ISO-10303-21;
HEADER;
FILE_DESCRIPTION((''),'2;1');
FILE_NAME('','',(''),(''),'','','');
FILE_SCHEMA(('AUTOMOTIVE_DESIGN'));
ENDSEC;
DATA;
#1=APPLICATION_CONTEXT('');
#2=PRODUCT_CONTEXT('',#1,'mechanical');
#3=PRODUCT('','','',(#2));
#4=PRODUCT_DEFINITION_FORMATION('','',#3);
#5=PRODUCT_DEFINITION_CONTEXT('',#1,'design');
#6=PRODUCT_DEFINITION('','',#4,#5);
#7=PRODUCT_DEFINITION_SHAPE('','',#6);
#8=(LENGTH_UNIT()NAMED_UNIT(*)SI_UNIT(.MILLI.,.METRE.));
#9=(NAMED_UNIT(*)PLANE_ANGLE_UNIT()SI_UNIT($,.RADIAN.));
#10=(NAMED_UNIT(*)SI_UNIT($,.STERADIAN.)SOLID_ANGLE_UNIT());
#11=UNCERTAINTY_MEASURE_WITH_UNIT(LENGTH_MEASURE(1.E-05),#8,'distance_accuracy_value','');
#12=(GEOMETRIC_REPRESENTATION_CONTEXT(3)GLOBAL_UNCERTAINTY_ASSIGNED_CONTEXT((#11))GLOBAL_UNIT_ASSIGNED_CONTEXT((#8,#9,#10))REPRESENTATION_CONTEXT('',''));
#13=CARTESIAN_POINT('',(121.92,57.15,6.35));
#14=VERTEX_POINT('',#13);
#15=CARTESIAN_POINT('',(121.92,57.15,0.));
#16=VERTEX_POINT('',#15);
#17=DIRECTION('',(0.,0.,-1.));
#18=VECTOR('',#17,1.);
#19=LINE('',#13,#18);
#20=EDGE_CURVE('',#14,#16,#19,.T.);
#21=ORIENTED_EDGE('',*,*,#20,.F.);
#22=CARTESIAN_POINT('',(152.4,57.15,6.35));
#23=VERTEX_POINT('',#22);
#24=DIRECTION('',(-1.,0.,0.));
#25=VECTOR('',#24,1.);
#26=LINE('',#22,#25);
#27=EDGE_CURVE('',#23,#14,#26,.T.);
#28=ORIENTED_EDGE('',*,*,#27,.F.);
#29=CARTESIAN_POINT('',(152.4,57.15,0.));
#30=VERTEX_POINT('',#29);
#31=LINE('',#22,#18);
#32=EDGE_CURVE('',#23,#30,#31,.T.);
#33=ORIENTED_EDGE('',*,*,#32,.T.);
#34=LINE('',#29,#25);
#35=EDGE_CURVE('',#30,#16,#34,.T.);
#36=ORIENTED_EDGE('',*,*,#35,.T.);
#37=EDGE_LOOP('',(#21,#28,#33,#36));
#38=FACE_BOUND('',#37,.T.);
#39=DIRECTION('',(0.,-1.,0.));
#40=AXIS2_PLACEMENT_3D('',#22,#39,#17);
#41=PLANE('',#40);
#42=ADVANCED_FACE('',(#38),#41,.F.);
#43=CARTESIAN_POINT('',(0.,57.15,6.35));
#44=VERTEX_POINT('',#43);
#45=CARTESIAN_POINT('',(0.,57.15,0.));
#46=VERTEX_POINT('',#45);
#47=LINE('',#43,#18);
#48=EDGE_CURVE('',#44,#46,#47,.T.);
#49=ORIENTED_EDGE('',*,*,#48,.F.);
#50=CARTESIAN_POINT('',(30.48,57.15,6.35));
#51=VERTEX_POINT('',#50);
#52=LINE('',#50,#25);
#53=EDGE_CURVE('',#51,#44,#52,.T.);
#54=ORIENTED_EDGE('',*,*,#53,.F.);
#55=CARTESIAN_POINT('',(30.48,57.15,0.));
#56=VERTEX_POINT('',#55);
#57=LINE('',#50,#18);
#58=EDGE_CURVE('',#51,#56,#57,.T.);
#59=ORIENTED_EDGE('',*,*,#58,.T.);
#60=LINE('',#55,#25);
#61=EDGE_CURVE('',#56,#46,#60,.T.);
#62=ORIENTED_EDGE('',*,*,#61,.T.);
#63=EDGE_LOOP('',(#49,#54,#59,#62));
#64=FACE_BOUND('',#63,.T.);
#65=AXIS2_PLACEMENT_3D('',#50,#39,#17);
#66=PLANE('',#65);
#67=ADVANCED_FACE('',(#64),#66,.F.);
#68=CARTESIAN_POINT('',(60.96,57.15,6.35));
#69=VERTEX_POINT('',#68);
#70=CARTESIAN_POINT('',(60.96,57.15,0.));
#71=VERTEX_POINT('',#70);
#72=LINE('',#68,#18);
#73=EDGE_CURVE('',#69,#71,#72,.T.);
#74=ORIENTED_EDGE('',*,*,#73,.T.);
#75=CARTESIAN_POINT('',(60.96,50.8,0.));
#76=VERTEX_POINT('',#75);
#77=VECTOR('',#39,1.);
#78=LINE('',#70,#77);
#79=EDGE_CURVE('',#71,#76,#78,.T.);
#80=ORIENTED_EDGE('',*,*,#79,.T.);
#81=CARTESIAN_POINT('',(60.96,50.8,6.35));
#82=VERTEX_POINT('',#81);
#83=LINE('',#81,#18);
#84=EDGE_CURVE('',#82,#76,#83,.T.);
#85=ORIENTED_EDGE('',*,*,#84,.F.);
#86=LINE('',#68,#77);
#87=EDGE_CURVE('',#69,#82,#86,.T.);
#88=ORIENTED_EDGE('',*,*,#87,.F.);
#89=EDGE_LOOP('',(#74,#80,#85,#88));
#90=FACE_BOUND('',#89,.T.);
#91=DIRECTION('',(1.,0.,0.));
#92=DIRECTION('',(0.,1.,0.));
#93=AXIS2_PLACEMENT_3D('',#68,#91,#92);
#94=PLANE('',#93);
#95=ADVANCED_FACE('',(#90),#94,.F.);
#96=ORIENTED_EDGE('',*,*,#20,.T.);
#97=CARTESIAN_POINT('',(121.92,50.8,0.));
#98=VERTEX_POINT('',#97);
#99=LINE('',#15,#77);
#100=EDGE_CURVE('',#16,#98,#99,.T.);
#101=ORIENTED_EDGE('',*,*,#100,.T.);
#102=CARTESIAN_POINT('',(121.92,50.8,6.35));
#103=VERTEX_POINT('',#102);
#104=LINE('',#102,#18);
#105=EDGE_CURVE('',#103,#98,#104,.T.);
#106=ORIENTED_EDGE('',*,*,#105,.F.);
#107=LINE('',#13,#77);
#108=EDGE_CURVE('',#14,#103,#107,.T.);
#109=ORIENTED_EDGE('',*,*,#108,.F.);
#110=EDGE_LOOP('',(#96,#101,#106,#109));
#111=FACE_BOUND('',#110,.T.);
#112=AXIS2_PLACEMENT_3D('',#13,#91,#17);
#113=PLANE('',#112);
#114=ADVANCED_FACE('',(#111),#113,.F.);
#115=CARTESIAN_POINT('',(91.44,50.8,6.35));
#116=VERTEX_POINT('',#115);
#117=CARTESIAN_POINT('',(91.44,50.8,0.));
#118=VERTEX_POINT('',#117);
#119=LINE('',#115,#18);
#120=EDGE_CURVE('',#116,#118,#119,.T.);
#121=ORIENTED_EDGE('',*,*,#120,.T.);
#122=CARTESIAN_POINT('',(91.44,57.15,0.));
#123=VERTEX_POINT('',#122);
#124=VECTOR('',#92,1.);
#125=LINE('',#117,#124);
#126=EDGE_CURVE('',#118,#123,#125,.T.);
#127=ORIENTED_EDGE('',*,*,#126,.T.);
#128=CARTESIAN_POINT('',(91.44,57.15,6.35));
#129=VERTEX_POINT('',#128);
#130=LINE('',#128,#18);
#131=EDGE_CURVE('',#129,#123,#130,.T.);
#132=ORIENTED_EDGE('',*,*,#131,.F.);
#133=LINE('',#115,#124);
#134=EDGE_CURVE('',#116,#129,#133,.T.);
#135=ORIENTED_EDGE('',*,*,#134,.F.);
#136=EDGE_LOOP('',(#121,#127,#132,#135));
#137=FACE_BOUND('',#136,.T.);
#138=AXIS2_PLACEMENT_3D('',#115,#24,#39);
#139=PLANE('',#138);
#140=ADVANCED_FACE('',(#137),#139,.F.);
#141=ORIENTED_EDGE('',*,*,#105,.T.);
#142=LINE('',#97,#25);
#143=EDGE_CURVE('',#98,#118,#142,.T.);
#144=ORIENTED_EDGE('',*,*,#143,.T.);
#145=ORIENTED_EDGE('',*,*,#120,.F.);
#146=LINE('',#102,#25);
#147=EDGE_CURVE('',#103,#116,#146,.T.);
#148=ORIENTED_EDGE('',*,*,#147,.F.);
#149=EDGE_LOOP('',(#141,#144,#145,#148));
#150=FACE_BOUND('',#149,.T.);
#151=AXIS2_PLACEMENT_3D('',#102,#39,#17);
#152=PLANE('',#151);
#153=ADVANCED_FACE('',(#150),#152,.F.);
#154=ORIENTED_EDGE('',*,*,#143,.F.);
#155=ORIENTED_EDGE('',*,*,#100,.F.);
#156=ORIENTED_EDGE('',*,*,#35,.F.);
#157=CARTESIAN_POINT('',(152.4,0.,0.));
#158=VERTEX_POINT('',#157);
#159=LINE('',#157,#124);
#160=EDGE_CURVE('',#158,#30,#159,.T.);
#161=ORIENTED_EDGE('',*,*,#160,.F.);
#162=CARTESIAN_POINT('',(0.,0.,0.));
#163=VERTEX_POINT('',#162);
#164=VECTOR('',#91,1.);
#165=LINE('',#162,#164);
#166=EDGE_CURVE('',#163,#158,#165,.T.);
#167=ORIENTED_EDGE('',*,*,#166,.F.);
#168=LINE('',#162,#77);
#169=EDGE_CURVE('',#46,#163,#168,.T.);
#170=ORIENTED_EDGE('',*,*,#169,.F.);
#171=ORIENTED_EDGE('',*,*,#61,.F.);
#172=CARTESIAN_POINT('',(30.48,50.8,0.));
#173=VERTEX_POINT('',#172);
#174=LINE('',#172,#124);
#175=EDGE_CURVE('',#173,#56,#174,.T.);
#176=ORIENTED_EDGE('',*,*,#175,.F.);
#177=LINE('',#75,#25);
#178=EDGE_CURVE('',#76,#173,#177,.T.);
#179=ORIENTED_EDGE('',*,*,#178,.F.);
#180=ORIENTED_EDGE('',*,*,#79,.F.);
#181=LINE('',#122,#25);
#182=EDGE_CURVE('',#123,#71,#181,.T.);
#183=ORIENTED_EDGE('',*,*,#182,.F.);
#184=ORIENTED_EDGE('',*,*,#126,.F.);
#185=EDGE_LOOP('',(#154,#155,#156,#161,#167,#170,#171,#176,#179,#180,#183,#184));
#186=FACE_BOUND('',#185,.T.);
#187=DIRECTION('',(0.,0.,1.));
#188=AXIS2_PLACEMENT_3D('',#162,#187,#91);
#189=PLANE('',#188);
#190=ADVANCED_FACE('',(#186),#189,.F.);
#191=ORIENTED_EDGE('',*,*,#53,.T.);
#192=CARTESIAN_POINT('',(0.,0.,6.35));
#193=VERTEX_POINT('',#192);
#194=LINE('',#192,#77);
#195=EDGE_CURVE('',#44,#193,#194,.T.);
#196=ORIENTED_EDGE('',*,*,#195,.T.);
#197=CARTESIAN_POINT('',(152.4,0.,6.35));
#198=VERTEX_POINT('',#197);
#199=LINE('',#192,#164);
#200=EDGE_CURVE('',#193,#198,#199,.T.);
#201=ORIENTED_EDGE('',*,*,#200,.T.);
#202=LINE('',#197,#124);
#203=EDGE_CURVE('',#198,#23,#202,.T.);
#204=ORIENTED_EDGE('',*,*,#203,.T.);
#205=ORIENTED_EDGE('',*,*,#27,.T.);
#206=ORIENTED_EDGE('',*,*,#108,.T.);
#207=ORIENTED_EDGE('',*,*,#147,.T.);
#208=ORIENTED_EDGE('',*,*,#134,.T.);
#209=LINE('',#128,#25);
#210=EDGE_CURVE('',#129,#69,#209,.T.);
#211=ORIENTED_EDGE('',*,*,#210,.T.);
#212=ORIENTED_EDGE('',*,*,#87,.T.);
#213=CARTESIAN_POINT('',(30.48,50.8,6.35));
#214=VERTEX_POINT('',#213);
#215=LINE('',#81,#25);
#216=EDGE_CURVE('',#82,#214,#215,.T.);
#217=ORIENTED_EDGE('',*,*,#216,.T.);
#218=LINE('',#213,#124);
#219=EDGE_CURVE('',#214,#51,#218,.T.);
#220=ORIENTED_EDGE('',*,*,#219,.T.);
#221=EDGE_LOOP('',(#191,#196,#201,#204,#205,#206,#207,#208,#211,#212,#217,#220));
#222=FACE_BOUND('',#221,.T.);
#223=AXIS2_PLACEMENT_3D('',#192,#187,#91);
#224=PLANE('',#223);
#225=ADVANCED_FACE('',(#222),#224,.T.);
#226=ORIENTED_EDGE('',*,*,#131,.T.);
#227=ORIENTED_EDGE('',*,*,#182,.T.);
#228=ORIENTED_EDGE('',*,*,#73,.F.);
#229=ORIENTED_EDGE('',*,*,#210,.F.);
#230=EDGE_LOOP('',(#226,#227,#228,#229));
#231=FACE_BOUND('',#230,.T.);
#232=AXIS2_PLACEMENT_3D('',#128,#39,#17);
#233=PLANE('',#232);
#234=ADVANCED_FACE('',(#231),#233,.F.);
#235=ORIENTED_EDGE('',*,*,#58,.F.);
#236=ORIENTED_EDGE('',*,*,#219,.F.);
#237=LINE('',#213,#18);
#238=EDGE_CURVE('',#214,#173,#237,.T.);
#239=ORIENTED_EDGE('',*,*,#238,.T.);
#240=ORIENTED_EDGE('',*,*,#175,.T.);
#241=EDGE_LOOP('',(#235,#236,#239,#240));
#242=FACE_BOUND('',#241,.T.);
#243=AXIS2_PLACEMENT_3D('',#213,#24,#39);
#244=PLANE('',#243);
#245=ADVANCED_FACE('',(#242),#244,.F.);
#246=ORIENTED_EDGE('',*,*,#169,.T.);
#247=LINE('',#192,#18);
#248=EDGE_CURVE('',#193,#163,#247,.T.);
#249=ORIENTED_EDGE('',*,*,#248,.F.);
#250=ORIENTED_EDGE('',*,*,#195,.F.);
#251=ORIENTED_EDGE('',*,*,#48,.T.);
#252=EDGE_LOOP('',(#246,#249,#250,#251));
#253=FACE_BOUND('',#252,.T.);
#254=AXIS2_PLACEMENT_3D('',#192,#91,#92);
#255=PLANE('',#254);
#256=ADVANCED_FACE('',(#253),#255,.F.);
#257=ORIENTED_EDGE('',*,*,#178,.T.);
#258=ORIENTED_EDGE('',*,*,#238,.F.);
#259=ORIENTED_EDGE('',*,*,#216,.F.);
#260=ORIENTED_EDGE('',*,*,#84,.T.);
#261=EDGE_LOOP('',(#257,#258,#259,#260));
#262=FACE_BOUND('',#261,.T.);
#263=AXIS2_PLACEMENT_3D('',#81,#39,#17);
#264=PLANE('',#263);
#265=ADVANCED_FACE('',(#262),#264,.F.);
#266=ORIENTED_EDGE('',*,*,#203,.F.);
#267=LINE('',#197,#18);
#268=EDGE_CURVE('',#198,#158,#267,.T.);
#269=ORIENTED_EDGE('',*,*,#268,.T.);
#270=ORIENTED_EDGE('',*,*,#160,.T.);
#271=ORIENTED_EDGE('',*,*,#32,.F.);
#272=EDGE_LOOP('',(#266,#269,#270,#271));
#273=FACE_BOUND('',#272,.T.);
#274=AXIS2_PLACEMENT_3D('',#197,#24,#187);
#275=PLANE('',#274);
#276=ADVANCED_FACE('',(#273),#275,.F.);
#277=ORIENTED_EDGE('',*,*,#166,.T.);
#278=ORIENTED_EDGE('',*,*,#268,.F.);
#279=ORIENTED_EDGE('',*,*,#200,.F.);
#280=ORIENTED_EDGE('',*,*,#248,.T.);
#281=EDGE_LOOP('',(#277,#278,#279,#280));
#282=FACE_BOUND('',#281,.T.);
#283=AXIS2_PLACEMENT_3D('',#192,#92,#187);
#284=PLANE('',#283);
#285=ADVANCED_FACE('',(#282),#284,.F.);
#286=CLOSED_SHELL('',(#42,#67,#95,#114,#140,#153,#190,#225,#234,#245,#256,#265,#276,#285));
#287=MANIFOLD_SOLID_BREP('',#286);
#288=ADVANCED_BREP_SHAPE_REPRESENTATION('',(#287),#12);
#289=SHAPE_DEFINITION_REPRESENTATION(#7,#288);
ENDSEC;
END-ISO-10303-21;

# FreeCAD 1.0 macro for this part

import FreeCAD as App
import Part
import Sketcher
from FreeCAD import Vector
Q = App.Units.Quantity


def add_polygon(sketch, points):
    """Adds a closed chain of lines whose ends are joined by coincident constraints."""
    first, n = sketch.GeometryCount, len(points)
    for a, b in zip(points, points[1:] + points[:1]):
        sketch.addGeometry(Part.LineSegment(App.Vector(*a, 0), App.Vector(*b, 0)), False)
    for i in range(n):
        sketch.addConstraint(Sketcher.Constraint("Coincident", first + i, 2, first + (i + 1) % n, 1))

doc = App.newDocument("Part")
body = doc.addObject("PartDesign::Body", "Body")

# Sketch on XY plane
sketch1 = doc.addObject("Sketcher::SketchObject", "Sketch")
body.addObject(sketch1)
sketch1.AttachmentSupport = (doc.XY_Plane, [""])
sketch1.MapMode = "FlatFace"
add_polygon(sketch1, [(0, 0), (152, 0), (152, 57), (122, 57), (122, 51), (91, 51), (91, 57), (61, 57), (61, 51), (30, 51), (30, 57), (0, 57)])  # lines 0-11
sketch1.addConstraint(Sketcher.Constraint("Horizontal", 0))
sketch1.addConstraint(Sketcher.Constraint("Vertical", 1))
sketch1.addConstraint(Sketcher.Constraint("Horizontal", 2))
sketch1.addConstraint(Sketcher.Constraint("Vertical", 3))
sketch1.addConstraint(Sketcher.Constraint("Horizontal", 4))
sketch1.addConstraint(Sketcher.Constraint("Vertical", 5))
sketch1.addConstraint(Sketcher.Constraint("Horizontal", 6))
sketch1.addConstraint(Sketcher.Constraint("Vertical", 7))
sketch1.addConstraint(Sketcher.Constraint("Horizontal", 8))
sketch1.addConstraint(Sketcher.Constraint("Vertical", 9))
sketch1.addConstraint(Sketcher.Constraint("Horizontal", 10))
sketch1.addConstraint(Sketcher.Constraint("Vertical", 11))
sketch1.addConstraint(Sketcher.Constraint("Coincident", 11, 2, -1, 1))
sketch1.addConstraint(Sketcher.Constraint("Horizontal", 2, 2, 5, 2))
sketch1.addConstraint(Sketcher.Constraint("Horizontal", 4, 2, 7, 2))
sketch1.addConstraint(Sketcher.Constraint("Horizontal", 6, 2, 9, 2))
sketch1.addConstraint(Sketcher.Constraint("Equal", 2, 4))
sketch1.addConstraint(Sketcher.Constraint("Equal", 4, 6))
sketch1.addConstraint(Sketcher.Constraint("Equal", 6, 8))
sketch1.addConstraint(Sketcher.Constraint("Equal", 8, 10))
sketch1.addConstraint(Sketcher.Constraint("DistanceX", 0, 1, 0, 2, Q("6 in")))
sketch1.addConstraint(Sketcher.Constraint("DistanceY", -1, 1, 3, 2, Q("2 in")))
sketch1.addConstraint(Sketcher.Constraint("DistanceY", 1, 1, 1, 2, Q("2.25 in")))
pad1 = doc.addObject("PartDesign::Pad", "Pad")
body.addObject(pad1)
pad1.Profile = sketch1
pad1.Length = Q("0.25 in")

doc.recompute()
